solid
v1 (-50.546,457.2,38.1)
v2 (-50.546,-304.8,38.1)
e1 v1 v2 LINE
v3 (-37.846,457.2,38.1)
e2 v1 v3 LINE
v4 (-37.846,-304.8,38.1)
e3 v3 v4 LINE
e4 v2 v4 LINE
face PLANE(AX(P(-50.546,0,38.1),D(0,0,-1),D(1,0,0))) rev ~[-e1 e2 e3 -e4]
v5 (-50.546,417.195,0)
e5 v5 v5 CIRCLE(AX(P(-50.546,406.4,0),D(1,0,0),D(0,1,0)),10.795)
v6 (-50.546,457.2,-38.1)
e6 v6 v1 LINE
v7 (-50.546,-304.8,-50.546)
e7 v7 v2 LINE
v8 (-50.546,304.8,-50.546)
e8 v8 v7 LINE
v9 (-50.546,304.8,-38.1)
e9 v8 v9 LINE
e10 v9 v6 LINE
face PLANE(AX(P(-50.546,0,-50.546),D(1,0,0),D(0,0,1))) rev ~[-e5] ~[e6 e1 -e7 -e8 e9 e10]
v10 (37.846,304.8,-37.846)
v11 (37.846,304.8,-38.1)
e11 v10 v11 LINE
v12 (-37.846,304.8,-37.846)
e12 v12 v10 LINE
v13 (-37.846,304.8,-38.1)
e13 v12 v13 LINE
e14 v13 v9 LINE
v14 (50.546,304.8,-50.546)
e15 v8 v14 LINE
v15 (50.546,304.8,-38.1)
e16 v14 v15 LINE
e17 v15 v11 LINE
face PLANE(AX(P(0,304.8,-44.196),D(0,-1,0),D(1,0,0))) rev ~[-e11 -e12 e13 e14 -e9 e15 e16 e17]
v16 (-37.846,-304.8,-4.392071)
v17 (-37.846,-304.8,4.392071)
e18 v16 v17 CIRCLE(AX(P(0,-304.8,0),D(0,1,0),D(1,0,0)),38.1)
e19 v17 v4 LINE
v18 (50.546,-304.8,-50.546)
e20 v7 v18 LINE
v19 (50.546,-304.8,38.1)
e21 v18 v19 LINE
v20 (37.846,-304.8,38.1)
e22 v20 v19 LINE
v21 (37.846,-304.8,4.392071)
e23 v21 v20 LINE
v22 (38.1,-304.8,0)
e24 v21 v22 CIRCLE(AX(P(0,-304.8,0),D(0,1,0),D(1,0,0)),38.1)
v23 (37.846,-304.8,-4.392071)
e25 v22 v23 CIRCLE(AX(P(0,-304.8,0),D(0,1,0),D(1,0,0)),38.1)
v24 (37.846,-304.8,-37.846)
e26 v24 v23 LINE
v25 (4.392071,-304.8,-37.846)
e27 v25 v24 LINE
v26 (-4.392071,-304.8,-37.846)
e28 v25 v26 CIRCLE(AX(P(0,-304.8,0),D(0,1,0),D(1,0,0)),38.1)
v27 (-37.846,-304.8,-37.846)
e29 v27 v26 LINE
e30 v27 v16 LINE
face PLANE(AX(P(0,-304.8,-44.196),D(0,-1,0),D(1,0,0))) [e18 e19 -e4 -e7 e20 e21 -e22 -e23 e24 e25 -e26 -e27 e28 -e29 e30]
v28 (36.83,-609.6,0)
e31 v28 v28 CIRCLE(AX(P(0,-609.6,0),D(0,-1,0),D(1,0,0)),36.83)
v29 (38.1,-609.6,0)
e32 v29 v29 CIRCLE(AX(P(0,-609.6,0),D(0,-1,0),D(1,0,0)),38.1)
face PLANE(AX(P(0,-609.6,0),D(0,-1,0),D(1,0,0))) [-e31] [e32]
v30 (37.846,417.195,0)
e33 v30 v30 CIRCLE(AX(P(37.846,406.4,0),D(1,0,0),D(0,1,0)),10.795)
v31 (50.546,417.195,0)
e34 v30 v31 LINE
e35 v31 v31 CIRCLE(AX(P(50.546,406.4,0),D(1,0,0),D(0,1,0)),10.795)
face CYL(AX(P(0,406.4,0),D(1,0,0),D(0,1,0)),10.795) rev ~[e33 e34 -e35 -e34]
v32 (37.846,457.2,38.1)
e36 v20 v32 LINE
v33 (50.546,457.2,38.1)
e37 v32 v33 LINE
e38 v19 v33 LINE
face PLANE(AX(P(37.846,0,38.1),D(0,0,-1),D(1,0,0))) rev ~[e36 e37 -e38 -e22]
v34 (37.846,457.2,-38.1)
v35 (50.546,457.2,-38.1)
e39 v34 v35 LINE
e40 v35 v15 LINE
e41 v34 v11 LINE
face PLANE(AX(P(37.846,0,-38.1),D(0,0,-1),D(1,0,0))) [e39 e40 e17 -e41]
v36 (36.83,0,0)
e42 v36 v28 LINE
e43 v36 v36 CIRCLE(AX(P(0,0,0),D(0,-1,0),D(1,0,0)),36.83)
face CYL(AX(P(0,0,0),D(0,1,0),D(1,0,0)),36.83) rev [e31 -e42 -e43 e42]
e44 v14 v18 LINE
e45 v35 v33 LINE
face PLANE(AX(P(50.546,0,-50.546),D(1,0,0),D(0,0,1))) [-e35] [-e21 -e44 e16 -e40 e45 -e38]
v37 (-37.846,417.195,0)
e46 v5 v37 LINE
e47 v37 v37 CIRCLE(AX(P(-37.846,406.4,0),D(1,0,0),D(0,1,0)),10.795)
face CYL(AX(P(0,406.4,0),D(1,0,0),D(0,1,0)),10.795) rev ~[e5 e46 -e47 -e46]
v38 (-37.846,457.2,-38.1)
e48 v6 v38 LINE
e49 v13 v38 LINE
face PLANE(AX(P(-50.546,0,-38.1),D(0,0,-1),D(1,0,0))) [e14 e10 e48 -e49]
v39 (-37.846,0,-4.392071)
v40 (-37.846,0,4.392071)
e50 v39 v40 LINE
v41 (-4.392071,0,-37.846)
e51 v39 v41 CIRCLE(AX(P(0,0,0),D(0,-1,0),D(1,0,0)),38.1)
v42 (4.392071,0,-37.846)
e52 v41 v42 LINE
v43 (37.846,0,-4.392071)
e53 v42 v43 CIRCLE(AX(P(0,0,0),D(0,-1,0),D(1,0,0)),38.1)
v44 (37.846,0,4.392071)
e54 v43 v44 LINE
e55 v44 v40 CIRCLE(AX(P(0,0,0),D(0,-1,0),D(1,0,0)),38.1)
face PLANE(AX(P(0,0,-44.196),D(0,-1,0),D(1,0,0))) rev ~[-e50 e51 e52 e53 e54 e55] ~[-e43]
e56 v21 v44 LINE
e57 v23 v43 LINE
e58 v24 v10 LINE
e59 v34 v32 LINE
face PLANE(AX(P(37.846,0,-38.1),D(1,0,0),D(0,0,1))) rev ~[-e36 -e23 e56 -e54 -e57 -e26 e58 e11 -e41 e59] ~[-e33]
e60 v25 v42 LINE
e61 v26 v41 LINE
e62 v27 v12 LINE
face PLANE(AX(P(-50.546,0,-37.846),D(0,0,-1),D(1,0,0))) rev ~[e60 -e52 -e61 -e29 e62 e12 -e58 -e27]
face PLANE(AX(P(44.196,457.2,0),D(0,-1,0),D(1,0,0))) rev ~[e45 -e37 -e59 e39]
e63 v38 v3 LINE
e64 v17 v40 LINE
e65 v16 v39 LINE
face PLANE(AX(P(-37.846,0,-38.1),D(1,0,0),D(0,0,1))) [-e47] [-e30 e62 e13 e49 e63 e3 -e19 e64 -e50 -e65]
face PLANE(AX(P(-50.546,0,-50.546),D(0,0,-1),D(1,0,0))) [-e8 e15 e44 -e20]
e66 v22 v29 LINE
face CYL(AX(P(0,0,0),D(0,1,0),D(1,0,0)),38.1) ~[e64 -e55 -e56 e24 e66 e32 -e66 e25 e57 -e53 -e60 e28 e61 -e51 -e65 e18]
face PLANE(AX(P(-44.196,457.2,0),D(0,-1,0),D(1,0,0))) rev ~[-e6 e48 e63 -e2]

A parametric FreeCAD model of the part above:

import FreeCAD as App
import Part
import Sketcher
Q = App.Units.Quantity

doc = App.newDocument("Part")
body = doc.addObject("PartDesign::Body", "Body")

# Sketch on XZ plane
sketch1 = body.newObject("Sketcher::SketchObject", "Sketch")
sketch1.AttachmentSupport = (doc.getObject("XZ_Plane"), [""])
sketch1.MapMode = "FlatFace"
sketch1.addGeometry(Part.Circle(App.Vector(0, 0, 0), App.Vector(0, 0, 1), 38), False)
sketch1.addGeometry(Part.Circle(App.Vector(0, 0, 0), App.Vector(0, 0, 1), 37), False)
sketch1.addConstraint(Sketcher.Constraint("Coincident", 0, 3, -1, 1))
sketch1.addConstraint(Sketcher.Constraint("Coincident", 1, 3, -1, 1))
sketch1.addConstraint(Sketcher.Constraint("Diameter", 0, Q("3 in")))
sketch1.addConstraint(Sketcher.Constraint("Diameter", 1, Q("2.9 in")))
pad1 = body.newObject("PartDesign::Pad", "Pad")
pad1.Profile = sketch1
pad1.Length = Q("24 in")

# Sketch on XZ plane
sketch2 = body.newObject("Sketcher::SketchObject", "Sketch001")
sketch2.AttachmentSupport = (doc.getObject("XZ_Plane"), [""])
sketch2.MapMode = "FlatFace"
sketch2.addGeometry(Part.LineSegment(App.Vector(38, 38, 0), App.Vector(38, -38, 0)), False)
sketch2.addGeometry(Part.LineSegment(App.Vector(38, -38, 0), App.Vector(51, -38, 0)), False)
sketch2.addGeometry(Part.LineSegment(App.Vector(51, -38, 0), App.Vector(51, 38, 0)), False)
sketch2.addGeometry(Part.LineSegment(App.Vector(51, 38, 0), App.Vector(38, 38, 0)), False)
sketch2.addGeometry(Part.LineSegment(App.Vector(-51, 38, 0), App.Vector(-51, -38, 0)), False)
sketch2.addGeometry(Part.LineSegment(App.Vector(-51, -38, 0), App.Vector(-38, -38, 0)), False)
sketch2.addGeometry(Part.LineSegment(App.Vector(-38, -38, 0), App.Vector(-38, 38, 0)), False)
sketch2.addGeometry(Part.LineSegment(App.Vector(-38, 38, 0), App.Vector(-51, 38, 0)), False)
sketch2.addConstraint(Sketcher.Constraint("Coincident", 0, 2, 1, 1))
sketch2.addConstraint(Sketcher.Constraint("Coincident", 1, 2, 2, 1))
sketch2.addConstraint(Sketcher.Constraint("Coincident", 2, 2, 3, 1))
sketch2.addConstraint(Sketcher.Constraint("Coincident", 3, 2, 0, 1))
sketch2.addConstraint(Sketcher.Constraint("Coincident", 4, 2, 5, 1))
sketch2.addConstraint(Sketcher.Constraint("Coincident", 5, 2, 6, 1))
sketch2.addConstraint(Sketcher.Constraint("Coincident", 6, 2, 7, 1))
sketch2.addConstraint(Sketcher.Constraint("Coincident", 7, 2, 4, 1))
sketch2.addConstraint(Sketcher.Constraint("Vertical", 0))
sketch2.addConstraint(Sketcher.Constraint("Horizontal", 1))
sketch2.addConstraint(Sketcher.Constraint("Vertical", 2))
sketch2.addConstraint(Sketcher.Constraint("Horizontal", 3))
sketch2.addConstraint(Sketcher.Constraint("Vertical", 4))
sketch2.addConstraint(Sketcher.Constraint("Horizontal", 5))
sketch2.addConstraint(Sketcher.Constraint("Vertical", 6))
sketch2.addConstraint(Sketcher.Constraint("Horizontal", 7))
sketch2.addConstraint(Sketcher.Constraint("Symmetric", 2, 2, 4, 2, -1, 1))
sketch2.addConstraint(Sketcher.Constraint("Symmetric", 0, 2, 6, 2, -1, 1))
sketch2.addConstraint(Sketcher.Constraint("Horizontal", 1, 2, 4, 2))
sketch2.addConstraint(Sketcher.Constraint("DistanceY", 0, 2, 0, 1, Q("3 in")))
sketch2.addConstraint(Sketcher.Constraint("DistanceX", 1, 1, 1, 2, Q("0.5 in")))
sketch2.addConstraint(Sketcher.Constraint("DistanceX", -1, 1, 0, 2, Q("1.49 in")))
pad2 = body.newObject("PartDesign::Pad", "Pad001")
pad2.Profile = sketch2
pad2.Length = Q("12 in")

# Sketch on XZ plane
sketch3 = body.newObject("Sketcher::SketchObject", "Sketch002")
sketch3.AttachmentSupport = (doc.getObject("XZ_Plane"), [""])
sketch3.MapMode = "FlatFace"
sketch3.addGeometry(Part.LineSegment(App.Vector(38, 38, 0), App.Vector(38, -38, 0)), False)
sketch3.addGeometry(Part.LineSegment(App.Vector(38, -38, 0), App.Vector(51, -38, 0)), False)
sketch3.addGeometry(Part.LineSegment(App.Vector(51, -38, 0), App.Vector(51, 38, 0)), False)
sketch3.addGeometry(Part.LineSegment(App.Vector(51, 38, 0), App.Vector(38, 38, 0)), False)
sketch3.addGeometry(Part.LineSegment(App.Vector(-51, 38, 0), App.Vector(-51, -38, 0)), False)
sketch3.addGeometry(Part.LineSegment(App.Vector(-51, -38, 0), App.Vector(-38, -38, 0)), False)
sketch3.addGeometry(Part.LineSegment(App.Vector(-38, -38, 0), App.Vector(-38, 38, 0)), False)
sketch3.addGeometry(Part.LineSegment(App.Vector(-38, 38, 0), App.Vector(-51, 38, 0)), False)
sketch3.addConstraint(Sketcher.Constraint("Coincident", 0, 2, 1, 1))
sketch3.addConstraint(Sketcher.Constraint("Coincident", 1, 2, 2, 1))
sketch3.addConstraint(Sketcher.Constraint("Coincident", 2, 2, 3, 1))
sketch3.addConstraint(Sketcher.Constraint("Coincident", 3, 2, 0, 1))
sketch3.addConstraint(Sketcher.Constraint("Coincident", 4, 2, 5, 1))
sketch3.addConstraint(Sketcher.Constraint("Coincident", 5, 2, 6, 1))
sketch3.addConstraint(Sketcher.Constraint("Coincident", 6, 2, 7, 1))
sketch3.addConstraint(Sketcher.Constraint("Coincident", 7, 2, 4, 1))
sketch3.addConstraint(Sketcher.Constraint("Vertical", 0))
sketch3.addConstraint(Sketcher.Constraint("Horizontal", 1))
sketch3.addConstraint(Sketcher.Constraint("Vertical", 2))
sketch3.addConstraint(Sketcher.Constraint("Horizontal", 3))
sketch3.addConstraint(Sketcher.Constraint("Vertical", 4))
sketch3.addConstraint(Sketcher.Constraint("Horizontal", 5))
sketch3.addConstraint(Sketcher.Constraint("Vertical", 6))
sketch3.addConstraint(Sketcher.Constraint("Horizontal", 7))
sketch3.addConstraint(Sketcher.Constraint("Symmetric", 2, 2, 4, 2, -1, 1))
sketch3.addConstraint(Sketcher.Constraint("Symmetric", 0, 2, 6, 2, -1, 1))
sketch3.addConstraint(Sketcher.Constraint("Horizontal", 1, 2, 4, 2))
sketch3.addConstraint(Sketcher.Constraint("DistanceY", 0, 2, 0, 1, Q("3 in")))
sketch3.addConstraint(Sketcher.Constraint("DistanceX", 1, 1, 1, 2, Q("0.5 in")))
sketch3.addConstraint(Sketcher.Constraint("DistanceX", -1, 1, 0, 2, Q("1.49 in")))
pad3 = body.newObject("PartDesign::Pad", "Pad002")
pad3.Profile = sketch3
pad3.Length = Q("18 in")
pad3.Reversed = True

# Sketch on XZ plane
sketch4 = body.newObject("Sketcher::SketchObject", "Sketch003")
sketch4.AttachmentSupport = (doc.getObject("XZ_Plane"), [""])
sketch4.MapMode = "FlatFace"
sketch4.addGeometry(Part.LineSegment(App.Vector(-51, -38, 0), App.Vector(-51, -51, 0)), False)
sketch4.addGeometry(Part.LineSegment(App.Vector(-51, -51, 0), App.Vector(51, -51, 0)), False)
sketch4.addGeometry(Part.LineSegment(App.Vector(51, -51, 0), App.Vector(51, -38, 0)), False)
sketch4.addGeometry(Part.LineSegment(App.Vector(51, -38, 0), App.Vector(-51, -38, 0)), False)
sketch4.addConstraint(Sketcher.Constraint("Coincident", 0, 2, 1, 1))
sketch4.addConstraint(Sketcher.Constraint("Coincident", 1, 2, 2, 1))
sketch4.addConstraint(Sketcher.Constraint("Coincident", 2, 2, 3, 1))
sketch4.addConstraint(Sketcher.Constraint("Coincident", 3, 2, 0, 1))
sketch4.addConstraint(Sketcher.Constraint("Vertical", 0))
sketch4.addConstraint(Sketcher.Constraint("Horizontal", 1))
sketch4.addConstraint(Sketcher.Constraint("Vertical", 2))
sketch4.addConstraint(Sketcher.Constraint("Horizontal", 3))
sketch4.addConstraint(Sketcher.Constraint("DistanceY", 0, 2, 0, 1, Q("0.5 in")))
sketch4.addConstraint(Sketcher.Constraint("DistanceX", 1, 1, 1, 2, Q("3.98 in")))
sketch4.addConstraint(Sketcher.Constraint("DistanceX", 0, 2, -1, 1, Q("1.99 in")))
sketch4.addConstraint(Sketcher.Constraint("DistanceY", 0, 2, -1, 1, Q("1.99 in")))
pad4 = body.newObject("PartDesign::Pad", "Pad003")
pad4.Profile = sketch4
pad4.Length = Q("12 in")

# Sketch on XZ plane
sketch5 = body.newObject("Sketcher::SketchObject", "Sketch004")
sketch5.AttachmentSupport = (doc.getObject("XZ_Plane"), [""])
sketch5.MapMode = "FlatFace"
sketch5.addGeometry(Part.LineSegment(App.Vector(-51, -38, 0), App.Vector(-51, -51, 0)), False)
sketch5.addGeometry(Part.LineSegment(App.Vector(-51, -51, 0), App.Vector(51, -51, 0)), False)
sketch5.addGeometry(Part.LineSegment(App.Vector(51, -51, 0), App.Vector(51, -38, 0)), False)
sketch5.addGeometry(Part.LineSegment(App.Vector(51, -38, 0), App.Vector(-51, -38, 0)), False)
sketch5.addConstraint(Sketcher.Constraint("Coincident", 0, 2, 1, 1))
sketch5.addConstraint(Sketcher.Constraint("Coincident", 1, 2, 2, 1))
sketch5.addConstraint(Sketcher.Constraint("Coincident", 2, 2, 3, 1))
sketch5.addConstraint(Sketcher.Constraint("Coincident", 3, 2, 0, 1))
sketch5.addConstraint(Sketcher.Constraint("Vertical", 0))
sketch5.addConstraint(Sketcher.Constraint("Horizontal", 1))
sketch5.addConstraint(Sketcher.Constraint("Vertical", 2))
sketch5.addConstraint(Sketcher.Constraint("Horizontal", 3))
sketch5.addConstraint(Sketcher.Constraint("DistanceY", 0, 2, 0, 1, Q("0.5 in")))
sketch5.addConstraint(Sketcher.Constraint("DistanceX", 1, 1, 1, 2, Q("3.98 in")))
sketch5.addConstraint(Sketcher.Constraint("DistanceX", 0, 2, -1, 1, Q("1.99 in")))
sketch5.addConstraint(Sketcher.Constraint("DistanceY", 0, 2, -1, 1, Q("1.99 in")))
pad5 = body.newObject("PartDesign::Pad", "Pad004")
pad5.Profile = sketch5
pad5.Length = Q("12 in")
pad5.Reversed = True

# Sketch on YZ plane
sketch6 = body.newObject("Sketcher::SketchObject", "Sketch005")
sketch6.AttachmentSupport = (doc.getObject("YZ_Plane"), [""])
sketch6.MapMode = "FlatFace"
sketch6.addGeometry(Part.Circle(App.Vector(406, 0, 0), App.Vector(0, 0, 1), 11), False)
sketch6.addConstraint(Sketcher.Constraint("PointOnObject", 0, 3, -1))
sketch6.addConstraint(Sketcher.Constraint("Diameter", 0, Q("0.85 in")))
sketch6.addConstraint(Sketcher.Constraint("DistanceX", -1, 1, 0, 3, Q("16 in")))
pocket1 = body.newObject("PartDesign::Pocket", "Pocket")
pocket1.Profile = sketch6
pocket1.Length = Q("4 in")
pocket1.Midplane = True

doc.recompute()
